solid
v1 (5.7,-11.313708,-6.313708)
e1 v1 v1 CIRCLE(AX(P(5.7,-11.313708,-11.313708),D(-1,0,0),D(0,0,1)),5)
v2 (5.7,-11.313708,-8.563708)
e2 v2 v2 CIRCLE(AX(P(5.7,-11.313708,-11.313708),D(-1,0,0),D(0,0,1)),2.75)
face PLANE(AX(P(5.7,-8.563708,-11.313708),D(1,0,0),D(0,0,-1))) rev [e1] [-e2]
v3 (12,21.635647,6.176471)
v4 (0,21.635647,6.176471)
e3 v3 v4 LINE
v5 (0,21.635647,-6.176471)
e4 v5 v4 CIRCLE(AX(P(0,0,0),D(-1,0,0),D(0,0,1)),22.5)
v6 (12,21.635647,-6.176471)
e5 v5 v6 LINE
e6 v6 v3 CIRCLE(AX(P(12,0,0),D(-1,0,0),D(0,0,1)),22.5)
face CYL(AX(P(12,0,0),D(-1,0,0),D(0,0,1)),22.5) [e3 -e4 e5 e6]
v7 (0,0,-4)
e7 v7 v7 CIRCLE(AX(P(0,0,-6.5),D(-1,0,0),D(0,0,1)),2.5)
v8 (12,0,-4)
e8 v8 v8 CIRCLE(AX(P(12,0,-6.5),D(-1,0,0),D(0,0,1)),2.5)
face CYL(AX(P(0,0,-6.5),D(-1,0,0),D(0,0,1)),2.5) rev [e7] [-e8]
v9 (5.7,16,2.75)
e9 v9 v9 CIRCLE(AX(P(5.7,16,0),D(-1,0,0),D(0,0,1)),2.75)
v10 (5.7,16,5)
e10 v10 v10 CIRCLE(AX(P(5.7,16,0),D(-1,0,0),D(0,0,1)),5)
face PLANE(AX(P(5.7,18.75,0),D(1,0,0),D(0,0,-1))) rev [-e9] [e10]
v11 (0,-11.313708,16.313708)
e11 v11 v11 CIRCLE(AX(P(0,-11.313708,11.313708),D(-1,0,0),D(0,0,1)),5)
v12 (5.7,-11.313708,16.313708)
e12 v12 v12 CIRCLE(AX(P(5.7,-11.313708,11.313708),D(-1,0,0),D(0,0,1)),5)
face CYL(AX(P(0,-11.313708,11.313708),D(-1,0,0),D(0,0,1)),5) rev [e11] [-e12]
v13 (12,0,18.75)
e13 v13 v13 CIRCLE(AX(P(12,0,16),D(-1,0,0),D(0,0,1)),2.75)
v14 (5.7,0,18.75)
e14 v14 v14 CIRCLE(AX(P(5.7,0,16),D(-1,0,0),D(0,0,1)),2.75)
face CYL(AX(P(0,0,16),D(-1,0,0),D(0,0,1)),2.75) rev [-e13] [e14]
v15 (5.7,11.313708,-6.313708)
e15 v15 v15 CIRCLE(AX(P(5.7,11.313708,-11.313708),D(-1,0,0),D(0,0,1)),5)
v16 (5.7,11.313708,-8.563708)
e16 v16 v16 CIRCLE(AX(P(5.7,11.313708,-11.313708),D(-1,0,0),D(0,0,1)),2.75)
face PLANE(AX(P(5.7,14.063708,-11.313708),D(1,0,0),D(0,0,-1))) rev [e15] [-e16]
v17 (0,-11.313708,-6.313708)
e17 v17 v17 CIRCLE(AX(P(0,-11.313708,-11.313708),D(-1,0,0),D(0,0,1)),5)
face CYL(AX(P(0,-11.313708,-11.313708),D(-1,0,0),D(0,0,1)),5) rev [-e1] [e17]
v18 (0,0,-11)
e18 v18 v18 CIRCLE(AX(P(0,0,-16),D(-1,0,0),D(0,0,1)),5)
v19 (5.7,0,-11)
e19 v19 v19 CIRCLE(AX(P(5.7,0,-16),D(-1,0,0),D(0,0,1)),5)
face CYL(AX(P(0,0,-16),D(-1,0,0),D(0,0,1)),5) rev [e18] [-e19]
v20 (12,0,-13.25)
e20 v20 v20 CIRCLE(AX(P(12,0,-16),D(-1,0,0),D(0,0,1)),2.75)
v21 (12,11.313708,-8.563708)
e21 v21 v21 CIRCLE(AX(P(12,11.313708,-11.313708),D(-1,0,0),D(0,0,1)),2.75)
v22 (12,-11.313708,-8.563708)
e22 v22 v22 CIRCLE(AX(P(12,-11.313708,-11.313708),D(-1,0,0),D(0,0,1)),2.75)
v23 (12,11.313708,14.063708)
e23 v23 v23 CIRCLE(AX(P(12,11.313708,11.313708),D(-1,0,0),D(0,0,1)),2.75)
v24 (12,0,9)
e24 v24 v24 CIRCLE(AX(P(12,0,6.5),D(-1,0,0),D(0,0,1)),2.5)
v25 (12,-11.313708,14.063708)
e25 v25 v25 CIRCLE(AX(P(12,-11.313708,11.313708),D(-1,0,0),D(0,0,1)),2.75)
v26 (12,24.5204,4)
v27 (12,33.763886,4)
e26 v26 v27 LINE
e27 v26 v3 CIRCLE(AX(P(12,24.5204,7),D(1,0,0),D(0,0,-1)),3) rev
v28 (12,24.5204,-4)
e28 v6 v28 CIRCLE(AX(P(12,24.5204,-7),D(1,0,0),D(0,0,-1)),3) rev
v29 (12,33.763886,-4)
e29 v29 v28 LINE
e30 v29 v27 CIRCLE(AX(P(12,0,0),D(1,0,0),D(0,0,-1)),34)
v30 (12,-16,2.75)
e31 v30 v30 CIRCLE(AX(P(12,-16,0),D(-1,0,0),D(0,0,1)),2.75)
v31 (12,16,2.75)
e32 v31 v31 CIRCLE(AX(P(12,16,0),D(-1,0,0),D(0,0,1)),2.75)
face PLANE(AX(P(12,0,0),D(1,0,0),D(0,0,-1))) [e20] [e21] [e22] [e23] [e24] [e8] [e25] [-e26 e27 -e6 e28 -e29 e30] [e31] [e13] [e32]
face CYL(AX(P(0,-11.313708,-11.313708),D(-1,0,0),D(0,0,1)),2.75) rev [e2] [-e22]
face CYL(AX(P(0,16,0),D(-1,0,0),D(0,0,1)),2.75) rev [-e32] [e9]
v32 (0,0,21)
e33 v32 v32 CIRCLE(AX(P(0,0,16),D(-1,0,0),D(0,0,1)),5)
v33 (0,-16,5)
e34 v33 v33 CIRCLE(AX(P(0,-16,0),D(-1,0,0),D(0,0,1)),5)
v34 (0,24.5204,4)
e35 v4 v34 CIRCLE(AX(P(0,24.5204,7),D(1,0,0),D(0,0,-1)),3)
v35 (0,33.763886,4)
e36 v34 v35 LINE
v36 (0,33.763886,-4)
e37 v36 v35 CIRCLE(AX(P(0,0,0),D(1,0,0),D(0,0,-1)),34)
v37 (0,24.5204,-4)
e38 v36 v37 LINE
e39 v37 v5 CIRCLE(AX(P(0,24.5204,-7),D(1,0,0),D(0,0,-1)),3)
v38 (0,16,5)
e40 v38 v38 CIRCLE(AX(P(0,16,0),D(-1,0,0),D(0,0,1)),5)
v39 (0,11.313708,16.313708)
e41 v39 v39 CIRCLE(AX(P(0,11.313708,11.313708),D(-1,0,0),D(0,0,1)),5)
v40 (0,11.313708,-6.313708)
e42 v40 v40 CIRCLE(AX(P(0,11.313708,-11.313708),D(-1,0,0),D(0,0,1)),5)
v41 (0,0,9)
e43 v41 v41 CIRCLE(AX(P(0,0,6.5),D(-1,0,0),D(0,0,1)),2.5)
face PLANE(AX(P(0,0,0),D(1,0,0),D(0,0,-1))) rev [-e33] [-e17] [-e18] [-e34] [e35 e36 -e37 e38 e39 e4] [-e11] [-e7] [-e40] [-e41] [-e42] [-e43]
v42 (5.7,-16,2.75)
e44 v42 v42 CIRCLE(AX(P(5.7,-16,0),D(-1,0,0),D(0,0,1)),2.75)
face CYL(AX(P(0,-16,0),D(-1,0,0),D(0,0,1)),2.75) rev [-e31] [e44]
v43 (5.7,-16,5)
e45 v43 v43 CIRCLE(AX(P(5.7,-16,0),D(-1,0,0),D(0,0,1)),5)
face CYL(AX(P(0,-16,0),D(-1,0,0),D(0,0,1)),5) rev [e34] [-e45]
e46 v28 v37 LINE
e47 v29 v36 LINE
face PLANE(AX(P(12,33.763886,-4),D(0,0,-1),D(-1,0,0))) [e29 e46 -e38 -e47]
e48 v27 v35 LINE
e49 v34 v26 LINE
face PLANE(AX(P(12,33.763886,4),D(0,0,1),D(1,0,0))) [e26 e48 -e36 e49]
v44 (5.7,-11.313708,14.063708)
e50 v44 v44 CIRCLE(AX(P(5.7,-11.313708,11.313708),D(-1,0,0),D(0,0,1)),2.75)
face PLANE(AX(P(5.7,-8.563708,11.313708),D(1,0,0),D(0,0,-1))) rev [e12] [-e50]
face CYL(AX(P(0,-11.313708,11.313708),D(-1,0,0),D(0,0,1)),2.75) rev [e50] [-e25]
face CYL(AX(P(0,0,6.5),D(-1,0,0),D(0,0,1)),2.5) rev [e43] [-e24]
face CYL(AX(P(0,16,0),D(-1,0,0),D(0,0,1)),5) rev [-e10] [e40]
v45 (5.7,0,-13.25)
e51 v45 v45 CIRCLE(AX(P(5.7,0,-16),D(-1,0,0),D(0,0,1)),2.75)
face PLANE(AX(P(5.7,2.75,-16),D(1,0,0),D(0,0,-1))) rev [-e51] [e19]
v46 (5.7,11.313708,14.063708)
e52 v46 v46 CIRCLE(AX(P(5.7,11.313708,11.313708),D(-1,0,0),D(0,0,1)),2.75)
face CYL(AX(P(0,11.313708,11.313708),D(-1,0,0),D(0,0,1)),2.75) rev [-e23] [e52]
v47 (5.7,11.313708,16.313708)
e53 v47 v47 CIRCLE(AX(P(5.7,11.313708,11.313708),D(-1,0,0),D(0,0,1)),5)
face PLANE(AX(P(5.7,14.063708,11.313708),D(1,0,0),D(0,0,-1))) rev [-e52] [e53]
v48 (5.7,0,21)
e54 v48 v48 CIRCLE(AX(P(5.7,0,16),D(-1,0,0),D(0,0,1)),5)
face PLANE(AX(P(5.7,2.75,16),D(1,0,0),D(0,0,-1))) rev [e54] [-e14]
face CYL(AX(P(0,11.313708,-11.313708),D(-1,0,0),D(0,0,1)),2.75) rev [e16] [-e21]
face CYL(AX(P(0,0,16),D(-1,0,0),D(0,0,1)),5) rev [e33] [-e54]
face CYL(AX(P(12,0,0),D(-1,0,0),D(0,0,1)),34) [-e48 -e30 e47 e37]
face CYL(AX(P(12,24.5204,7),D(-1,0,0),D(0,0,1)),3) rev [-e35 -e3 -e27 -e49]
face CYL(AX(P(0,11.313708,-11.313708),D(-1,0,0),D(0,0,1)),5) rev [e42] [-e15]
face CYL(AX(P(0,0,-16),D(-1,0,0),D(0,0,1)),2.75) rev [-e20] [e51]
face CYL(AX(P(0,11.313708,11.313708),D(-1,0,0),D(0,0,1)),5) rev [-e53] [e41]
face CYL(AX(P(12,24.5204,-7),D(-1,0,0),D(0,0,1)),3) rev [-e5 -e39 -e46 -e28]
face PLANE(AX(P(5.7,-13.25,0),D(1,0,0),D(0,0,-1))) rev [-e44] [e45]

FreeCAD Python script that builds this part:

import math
import FreeCAD as App
import Part
import Sketcher

V = App.Vector
Q = App.Units.Quantity


def edges_at(feature, points):
    """Names of the edges that pass closest to the given points."""
    edges = feature.Shape.Edges
    near = lambda p: min(range(len(edges)), key=lambda i: edges[i].distToShape(Part.Vertex(*p))[0])
    return sorted({f"Edge{near(p) + 1}" for p in points})

doc = App.newDocument("Part")
body = doc.addObject("PartDesign::Body", "Body")

# Sketch on YZ plane
sketch1 = body.newObject("Sketcher::SketchObject", "Sketch")
sketch1.AttachmentSupport = (doc.getObject("YZ_Plane"), [""])
sketch1.MapMode = "FlatFace"
sketch1.addGeometry(Part.Circle(V(0, 0, 0), V(0, 0, 1), 34), False)
sketch1.addConstraint(Sketcher.Constraint("Coincident", 0, 3, -1, 1))
sketch1.addConstraint(Sketcher.Constraint("Diameter", 0, Q("68 mm")))
pad1 = body.newObject("PartDesign::Pad", "Pad")
pad1.Profile = sketch1
pad1.Length = 12

# Sketch on YZ plane
sketch2 = body.newObject("Sketcher::SketchObject", "Sketch001")
sketch2.AttachmentSupport = (doc.getObject("YZ_Plane"), [""])
sketch2.MapMode = "FlatFace"
sketch2.addGeometry(Part.Circle(V(16, 0, 0), V(0, 0, 1), 2.8), False)
sketch2.addConstraint(Sketcher.Constraint("PointOnObject", 0, 3, -1))
sketch2.addConstraint(Sketcher.Constraint("Diameter", 0, Q("5.5 mm")))
sketch2.addConstraint(Sketcher.Constraint("DistanceX", -1, 1, 0, 3, Q("16 mm")))
doc.recompute()
hole = body.newObject("PartDesign::Hole", "Hole")
hole.Profile = sketch2
hole.ThreadType = "None"
hole.Diameter = 5.5
hole.DepthType = "ThroughAll"
hole.HoleCutType = "Counterbore"
hole.HoleCutDiameter = 10
hole.HoleCutDepth = 5.7
hole.Reversed = True
doc.recompute()

polarpattern = body.newObject("PartDesign::PolarPattern", "PolarPattern")
polarpattern.Originals = [hole]
polarpattern.Axis = (doc.getObject("X_Axis"), [""])
polarpattern.Angle = 360
polarpattern.Occurrences = 8
body.Tip = polarpattern

# Sketch on YZ plane
sketch3 = body.newObject("Sketcher::SketchObject", "Sketch002")
sketch3.AttachmentSupport = (doc.getObject("YZ_Plane"), [""])
sketch3.MapMode = "FlatFace"
sketch3.addGeometry(Part.LineSegment(V(45, -45, 0), V(-45, -45, 0)), False)
sketch3.addGeometry(Part.LineSegment(V(-45, -45, 0), V(-45, 45, 0)), False)
sketch3.addGeometry(Part.LineSegment(V(-45, 45, 0), V(45, 45, 0)), False)
sketch3.addGeometry(Part.LineSegment(V(45, 45, 0), V(45, -45, 0)), False)
sketch3.addGeometry(Part.LineSegment(V(22, -4, 0), V(34, -4, 0)), False)
sketch3.addGeometry(Part.ArcOfCircle(Part.Circle(V(0, 0, 0), V(0, 0, 1), 34), math.radians(-6.76), math.radians(6.76)), False)
sketch3.addGeometry(Part.LineSegment(V(34, 4, 0), V(22, 4, 0)), False)
sketch3.addGeometry(Part.ArcOfCircle(Part.Circle(V(0, 0, 0), V(0, 0, 1), 22), math.radians(10), math.radians(350)), False)
sketch3.addConstraint(Sketcher.Constraint("Coincident", 0, 2, 1, 1))
sketch3.addConstraint(Sketcher.Constraint("Coincident", 1, 2, 2, 1))
sketch3.addConstraint(Sketcher.Constraint("Coincident", 2, 2, 3, 1))
sketch3.addConstraint(Sketcher.Constraint("Coincident", 3, 2, 0, 1))
sketch3.addConstraint(Sketcher.Constraint("Coincident", 4, 2, 5, 1))
sketch3.addConstraint(Sketcher.Constraint("Coincident", 5, 2, 6, 1))
sketch3.addConstraint(Sketcher.Constraint("Coincident", 6, 2, 7, 1))
sketch3.addConstraint(Sketcher.Constraint("Coincident", 7, 2, 4, 1))
sketch3.addConstraint(Sketcher.Constraint("Horizontal", 0))
sketch3.addConstraint(Sketcher.Constraint("Vertical", 1))
sketch3.addConstraint(Sketcher.Constraint("Horizontal", 2))
sketch3.addConstraint(Sketcher.Constraint("Vertical", 3))
sketch3.addConstraint(Sketcher.Constraint("Horizontal", 4))
sketch3.addConstraint(Sketcher.Constraint("Horizontal", 6))
sketch3.addConstraint(Sketcher.Constraint("Coincident", 5, 3, -1, 1))
sketch3.addConstraint(Sketcher.Constraint("Coincident", 7, 3, -1, 1))
sketch3.addConstraint(Sketcher.Constraint("Symmetric", 0, 2, 2, 2, -1, 1))
sketch3.addConstraint(Sketcher.Constraint("Vertical", 4, 2, 5, 2))
sketch3.addConstraint(Sketcher.Constraint("Equal", 2, 1))
sketch3.addConstraint(Sketcher.Constraint("Radius", 5, Q("34 mm")))
sketch3.addConstraint(Sketcher.Constraint("Radius", 7, Q("22.5 mm")))
sketch3.addConstraint(Sketcher.Constraint("DistanceY", 4, 2, -1, 1, Q("4 mm")))
sketch3.addConstraint(Sketcher.Constraint("DistanceX", 0, 2, 0, 1, Q("89.382 mm")))
pocket1 = body.newObject("PartDesign::Pocket", "Pocket")
pocket1.Profile = sketch3
pocket1.Type = "ThroughAll"
pocket1.Reversed = True

# Sketch on YZ plane
sketch4 = body.newObject("Sketcher::SketchObject", "Sketch003")
sketch4.AttachmentSupport = (doc.getObject("YZ_Plane"), [""])
sketch4.MapMode = "FlatFace"
sketch4.addGeometry(Part.Circle(V(0, 6.5, 0), V(0, 0, 1), 2.5), False)
sketch4.addGeometry(Part.Circle(V(0, -6.5, 0), V(0, 0, 1), 2.5), False)
sketch4.addConstraint(Sketcher.Constraint("Equal", 0, 1))
sketch4.addConstraint(Sketcher.Constraint("Symmetric", 0, 3, 1, 3, -1, 1))
sketch4.addConstraint(Sketcher.Constraint("PointOnObject", 0, 3, -2))
sketch4.addConstraint(Sketcher.Constraint("Diameter", 0, Q("5 mm")))
sketch4.addConstraint(Sketcher.Constraint("DistanceY", 1, 3, 0, 3, Q("13 mm")))
doc.recompute()
hole2 = body.newObject("PartDesign::Hole", "Hole001")
hole2.Profile = sketch4
hole2.ThreadType = "None"
hole2.Diameter = 5
hole2.DepthType = "ThroughAll"
hole2.Reversed = True
doc.recompute()

fillet = body.newObject("PartDesign::Fillet", "Fillet")
fillet.Base = (hole2, edges_at(hole2, [(6, 22.142, 4), (6, 22.142, -4)]))
fillet.Radius = 3

doc.recompute()
